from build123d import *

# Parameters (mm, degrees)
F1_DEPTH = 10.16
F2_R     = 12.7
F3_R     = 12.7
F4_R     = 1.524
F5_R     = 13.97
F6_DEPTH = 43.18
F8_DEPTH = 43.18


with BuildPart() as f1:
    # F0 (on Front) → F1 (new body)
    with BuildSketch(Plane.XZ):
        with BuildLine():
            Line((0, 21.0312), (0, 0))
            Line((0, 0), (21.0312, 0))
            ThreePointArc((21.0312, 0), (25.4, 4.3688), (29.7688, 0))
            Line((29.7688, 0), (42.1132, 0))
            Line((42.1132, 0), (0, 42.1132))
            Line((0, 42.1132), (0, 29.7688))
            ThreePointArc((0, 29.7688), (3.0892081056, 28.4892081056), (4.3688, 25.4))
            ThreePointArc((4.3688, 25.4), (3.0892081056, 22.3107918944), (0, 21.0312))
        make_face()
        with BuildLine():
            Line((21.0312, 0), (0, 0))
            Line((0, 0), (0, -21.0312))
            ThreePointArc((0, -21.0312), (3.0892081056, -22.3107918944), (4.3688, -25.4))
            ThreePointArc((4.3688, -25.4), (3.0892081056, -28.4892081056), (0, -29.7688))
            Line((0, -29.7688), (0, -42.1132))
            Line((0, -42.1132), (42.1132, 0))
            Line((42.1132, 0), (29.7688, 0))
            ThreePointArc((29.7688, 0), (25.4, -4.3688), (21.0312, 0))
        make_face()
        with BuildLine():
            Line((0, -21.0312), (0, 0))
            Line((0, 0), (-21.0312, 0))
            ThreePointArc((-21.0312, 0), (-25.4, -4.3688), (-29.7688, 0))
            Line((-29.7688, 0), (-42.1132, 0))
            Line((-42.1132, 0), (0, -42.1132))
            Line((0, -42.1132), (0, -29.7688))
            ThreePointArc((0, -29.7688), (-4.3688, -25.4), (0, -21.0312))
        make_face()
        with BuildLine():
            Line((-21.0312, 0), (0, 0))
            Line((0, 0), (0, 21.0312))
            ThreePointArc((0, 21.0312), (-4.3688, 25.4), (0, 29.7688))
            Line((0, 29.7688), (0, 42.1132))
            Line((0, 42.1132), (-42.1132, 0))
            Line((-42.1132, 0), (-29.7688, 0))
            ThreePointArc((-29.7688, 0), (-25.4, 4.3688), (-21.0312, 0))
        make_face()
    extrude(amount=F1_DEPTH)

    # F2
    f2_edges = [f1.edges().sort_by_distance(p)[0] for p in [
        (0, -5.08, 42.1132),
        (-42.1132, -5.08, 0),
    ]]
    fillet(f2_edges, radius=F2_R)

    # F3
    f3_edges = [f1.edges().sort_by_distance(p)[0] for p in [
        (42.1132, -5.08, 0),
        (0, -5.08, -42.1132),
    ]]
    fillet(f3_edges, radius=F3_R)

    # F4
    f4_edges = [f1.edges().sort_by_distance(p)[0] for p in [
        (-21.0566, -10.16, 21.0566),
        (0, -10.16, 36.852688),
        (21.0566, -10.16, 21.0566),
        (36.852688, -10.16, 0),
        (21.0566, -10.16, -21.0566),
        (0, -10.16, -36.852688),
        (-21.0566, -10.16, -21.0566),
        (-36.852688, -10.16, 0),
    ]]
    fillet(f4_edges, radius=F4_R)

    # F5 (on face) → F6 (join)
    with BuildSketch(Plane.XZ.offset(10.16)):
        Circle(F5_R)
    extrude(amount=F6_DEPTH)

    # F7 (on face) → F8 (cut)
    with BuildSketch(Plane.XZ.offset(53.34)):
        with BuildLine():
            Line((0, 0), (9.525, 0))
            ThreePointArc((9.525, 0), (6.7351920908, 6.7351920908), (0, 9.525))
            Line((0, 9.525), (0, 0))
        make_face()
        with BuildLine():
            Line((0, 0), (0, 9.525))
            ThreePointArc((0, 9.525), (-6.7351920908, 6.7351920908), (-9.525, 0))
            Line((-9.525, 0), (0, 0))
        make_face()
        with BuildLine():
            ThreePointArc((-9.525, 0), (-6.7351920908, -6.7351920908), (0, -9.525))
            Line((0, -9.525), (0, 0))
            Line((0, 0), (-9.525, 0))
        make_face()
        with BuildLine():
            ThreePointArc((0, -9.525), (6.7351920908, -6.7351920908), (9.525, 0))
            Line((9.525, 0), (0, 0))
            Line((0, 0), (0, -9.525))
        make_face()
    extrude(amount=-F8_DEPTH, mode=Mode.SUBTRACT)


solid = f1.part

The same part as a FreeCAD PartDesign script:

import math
import FreeCAD as App
import Part
import Sketcher
Q = App.Units.Quantity


def edges_at(feature, points):
    """Names of the edges that pass closest to the given points."""
    edges = feature.Shape.Edges
    near = lambda p: min(range(len(edges)), key=lambda i: edges[i].distToShape(Part.Vertex(*p))[0])
    return sorted({f"Edge{near(p) + 1}" for p in points})


def add_polygon(sketch, points):
    """Adds a closed chain of lines whose ends are joined by coincident constraints."""
    first, n = sketch.GeometryCount, len(points)
    for a, b in zip(points, points[1:] + points[:1]):
        sketch.addGeometry(Part.LineSegment(App.Vector(*a, 0), App.Vector(*b, 0)), False)
    for i in range(n):
        sketch.addConstraint(Sketcher.Constraint("Coincident", first + i, 2, first + (i + 1) % n, 1))

doc = App.newDocument("Part")
params = doc.addObject("Spreadsheet::Sheet", "Params")
for row, (alias, value) in enumerate([
    ("sketch1_diameter", "0.344 in"),
    ("pad1_length", "0.4 in"),
    ("fillet_radius", "0.5 in"),
    ("fillet2_radius", "0.5 in"),
    ("fillet3_radius", "0.06 in"),
    ("sketch2_diameter", "1.1 in"),
    ("pad2_length", "1.7 in"),
    ("sketch3_radius", "0.375 in"),
    ("pocket1_length", "1.7 in"),
], start=1):
    params.set(f"A{row}", alias)
    params.set(f"B{row}", "=" + value)
    params.setAlias(f"B{row}", alias)

body = doc.addObject("PartDesign::Body", "Body")

# Sketch on XZ plane
sketch1 = body.newObject("Sketcher::SketchObject", "Sketch")
sketch1.AttachmentSupport = (doc.getObject("XZ_Plane"), [""])
sketch1.MapMode = "FlatFace"
add_polygon(sketch1, [(-42.1132, 0), (0, -42.1132), (42.1132, 0), (0, 42.1132)])  # lines 0-3
sketch1.addGeometry(Part.Circle(App.Vector(-25.4, 0, 0), App.Vector(0, 0, 1), 4.3688), False)  # 4
sketch1.addGeometry(Part.ArcOfCircle(Part.Circle(App.Vector(0, 25.4, 0), App.Vector(0, 0, 1), 4.3688), math.radians(0), math.radians(90)), False)  # 5
sketch1.addGeometry(Part.ArcOfCircle(Part.Circle(App.Vector(0, 25.4, 0), App.Vector(0, 0, 1), 4.3688), math.radians(-90), math.radians(0)), False)  # 6
sketch1.addGeometry(Part.ArcOfCircle(Part.Circle(App.Vector(0, 25.4, 0), App.Vector(0, 0, 1), 4.3688), math.radians(90), math.radians(270)), False)  # 7
sketch1.addGeometry(Part.ArcOfCircle(Part.Circle(App.Vector(0, -25.4, 0), App.Vector(0, 0, 1), 4.3688), math.radians(0), math.radians(90)), False)  # 8
sketch1.addGeometry(Part.ArcOfCircle(Part.Circle(App.Vector(0, -25.4, 0), App.Vector(0, 0, 1), 4.3688), math.radians(-90), math.radians(0)), False)  # 9
sketch1.addGeometry(Part.ArcOfCircle(Part.Circle(App.Vector(0, -25.4, 0), App.Vector(0, 0, 1), 4.3688), math.radians(90), math.radians(270)), False)  # 10
sketch1.addGeometry(Part.Circle(App.Vector(25.4, 0, 0), App.Vector(0, 0, 1), 4.3688), False)  # 11
sketch1.addConstraint(Sketcher.Constraint("Tangent", 5, 1, 6, 2))
sketch1.addConstraint(Sketcher.Constraint("Tangent", 6, 1, 7, 2))
sketch1.addConstraint(Sketcher.Constraint("Tangent", 7, 1, 5, 2))
sketch1.addConstraint(Sketcher.Constraint("Tangent", 8, 1, 9, 2))
sketch1.addConstraint(Sketcher.Constraint("Tangent", 9, 1, 10, 2))
sketch1.addConstraint(Sketcher.Constraint("Tangent", 10, 1, 8, 2))
sketch1.addConstraint(Sketcher.Constraint("Equal", 4, 5))
sketch1.addConstraint(Sketcher.Constraint("Equal", 7, 8))
sketch1.addConstraint(Sketcher.Constraint("Equal", 10, 11))
sketch1.addConstraint(Sketcher.Constraint("Symmetric", 5, 3, 8, 3, -1, 1))
sketch1.addConstraint(Sketcher.Constraint("Symmetric", 4, 3, 11, 3, -1, 1))
sketch1.addConstraint(Sketcher.Constraint("Symmetric", 0, 2, 2, 2, -1, 1))
sketch1.addConstraint(Sketcher.Constraint("Symmetric", 1, 2, 3, 2, -1, 1))
sketch1.addConstraint(Sketcher.Constraint("Symmetric", 5, 1, 8, 1, -1))
sketch1.addConstraint(Sketcher.Constraint("PointOnObject", 4, 3, -1))
sketch1.addConstraint(Sketcher.Constraint("PointOnObject", 0, 2, -2))
sketch1.addConstraint(Sketcher.Constraint("PointOnObject", 1, 2, -1))
sketch1.addConstraint(Sketcher.Constraint("PointOnObject", 6, 1, -2))
sketch1.addConstraint(Sketcher.Constraint("PointOnObject", 7, 1, -2))
sketch1.addConstraint(Sketcher.Constraint("PointOnObject", 9, 1, -2))
sketch1.addConstraint(Sketcher.Constraint("PointOnObject", 10, 1, -2))
sketch1.addConstraint(Sketcher.Constraint("Perpendicular", 0, 1))
sketch1.addConstraint(Sketcher.Constraint("Horizontal", 7, 3, 5, 1))
sketch1.addConstraint(Sketcher.Constraint("Diameter", 4, Q("0.344 in")))
sketch1.addConstraint(Sketcher.Constraint("DistanceX", 4, 3, -1, 1, Q("1 in")))
sketch1.addConstraint(Sketcher.Constraint("DistanceY", -1, 1, 5, 3, Q("1 in")))
sketch1.addConstraint(Sketcher.Constraint("DistanceY", 6, 1, 2, 2, Q("0.83 in")))
sketch1.setExpression("Constraints[27]", "Params.sketch1_diameter")
pad1 = body.newObject("PartDesign::Pad", "Pad")
pad1.Profile = sketch1
pad1.setExpression("Length", "Params.pad1_length")
doc.recompute()

fillet = body.newObject("PartDesign::Fillet", "Fillet")
fillet.Base = (pad1, edges_at(pad1, [(0, -5.08, 42.113), (-42.113, -5.08, 0)]))
fillet.setExpression("Radius", "Params.fillet_radius")
doc.recompute()

fillet2 = body.newObject("PartDesign::Fillet", "Fillet001")
fillet2.Base = (fillet, edges_at(fillet, [(42.113, -5.08, 0), (0, -5.08, -42.113)]))
fillet2.setExpression("Radius", "Params.fillet2_radius")
doc.recompute()

fillet3 = body.newObject("PartDesign::Fillet", "Fillet002")
fillet3.Base = (fillet2, edges_at(fillet2, [
    (-21.057, -10.16, 21.057),
    (0, -10.16, 36.853),
    (21.057, -10.16, 21.057),
    (36.853, -10.16, 0),
    (21.057, -10.16, -21.057),
    (0, -10.16, -36.853),
    (-21.057, -10.16, -21.057),
    (-36.853, -10.16, 0),
]))
fillet3.setExpression("Radius", "Params.fillet3_radius")

# Sketch on XZ plane
sketch2 = body.newObject("Sketcher::SketchObject", "Sketch001")
sketch2.AttachmentSupport = (doc.getObject("XZ_Plane"), [""])
sketch2.MapMode = "FlatFace"
sketch2.AttachmentOffset = App.Placement(App.Vector(0, 0, 0.4 * 25.4), App.Rotation())
sketch2.addGeometry(Part.Circle(App.Vector(0, 0, 0), App.Vector(0, 0, 1), 13.97), False)
sketch2.addConstraint(Sketcher.Constraint("Coincident", 0, 3, -1, 1))
sketch2.addConstraint(Sketcher.Constraint("Diameter", 0, Q("1.1 in")))
sketch2.setExpression("Constraints[1]", "Params.sketch2_diameter")
pad2 = body.newObject("PartDesign::Pad", "Pad001")
pad2.Profile = sketch2
pad2.setExpression("Length", "Params.pad2_length")

# Sketch on XZ plane
sketch3 = body.newObject("Sketcher::SketchObject", "Sketch002")
sketch3.AttachmentSupport = (doc.getObject("XZ_Plane"), [""])
sketch3.MapMode = "FlatFace"
sketch3.AttachmentOffset = App.Placement(App.Vector(0, 0, 2.1 * 25.4), App.Rotation())
sketch3.addGeometry(Part.ArcOfCircle(Part.Circle(App.Vector(0, 0, 0), App.Vector(0, 0, 1), 9.525), math.radians(0), math.radians(90)), False)
sketch3.addGeometry(Part.ArcOfCircle(Part.Circle(App.Vector(0, 0, 0), App.Vector(0, 0, 1), 9.525), math.radians(90), math.radians(180)), False)
sketch3.addGeometry(Part.ArcOfCircle(Part.Circle(App.Vector(0, 0, 0), App.Vector(0, 0, 1), 9.525), math.radians(180), math.radians(270)), False)
sketch3.addGeometry(Part.ArcOfCircle(Part.Circle(App.Vector(0, 0, 0), App.Vector(0, 0, 1), 9.525), math.radians(-90), math.radians(0)), False)
sketch3.addConstraint(Sketcher.Constraint("Tangent", 0, 2, 1, 1))
sketch3.addConstraint(Sketcher.Constraint("Tangent", 1, 2, 2, 1))
sketch3.addConstraint(Sketcher.Constraint("Tangent", 2, 2, 3, 1))
sketch3.addConstraint(Sketcher.Constraint("Tangent", 3, 2, 0, 1))
sketch3.addConstraint(Sketcher.Constraint("Coincident", 0, 3, -1, 1))
sketch3.addConstraint(Sketcher.Constraint("Equal", 0, 1))
sketch3.addConstraint(Sketcher.Constraint("PointOnObject", 0, 2, -2))
sketch3.addConstraint(Sketcher.Constraint("PointOnObject", 1, 2, -1))
sketch3.addConstraint(Sketcher.Constraint("PointOnObject", 2, 2, -2))
sketch3.addConstraint(Sketcher.Constraint("PointOnObject", 3, 2, -1))
sketch3.addConstraint(Sketcher.Constraint("Radius", 0, Q("0.375 in")))
sketch3.setExpression("Constraints[10]", "Params.sketch3_radius")
pocket1 = body.newObject("PartDesign::Pocket", "Pocket")
pocket1.Profile = sketch3
pocket1.setExpression("Length", "Params.pocket1_length")

doc.recompute()
